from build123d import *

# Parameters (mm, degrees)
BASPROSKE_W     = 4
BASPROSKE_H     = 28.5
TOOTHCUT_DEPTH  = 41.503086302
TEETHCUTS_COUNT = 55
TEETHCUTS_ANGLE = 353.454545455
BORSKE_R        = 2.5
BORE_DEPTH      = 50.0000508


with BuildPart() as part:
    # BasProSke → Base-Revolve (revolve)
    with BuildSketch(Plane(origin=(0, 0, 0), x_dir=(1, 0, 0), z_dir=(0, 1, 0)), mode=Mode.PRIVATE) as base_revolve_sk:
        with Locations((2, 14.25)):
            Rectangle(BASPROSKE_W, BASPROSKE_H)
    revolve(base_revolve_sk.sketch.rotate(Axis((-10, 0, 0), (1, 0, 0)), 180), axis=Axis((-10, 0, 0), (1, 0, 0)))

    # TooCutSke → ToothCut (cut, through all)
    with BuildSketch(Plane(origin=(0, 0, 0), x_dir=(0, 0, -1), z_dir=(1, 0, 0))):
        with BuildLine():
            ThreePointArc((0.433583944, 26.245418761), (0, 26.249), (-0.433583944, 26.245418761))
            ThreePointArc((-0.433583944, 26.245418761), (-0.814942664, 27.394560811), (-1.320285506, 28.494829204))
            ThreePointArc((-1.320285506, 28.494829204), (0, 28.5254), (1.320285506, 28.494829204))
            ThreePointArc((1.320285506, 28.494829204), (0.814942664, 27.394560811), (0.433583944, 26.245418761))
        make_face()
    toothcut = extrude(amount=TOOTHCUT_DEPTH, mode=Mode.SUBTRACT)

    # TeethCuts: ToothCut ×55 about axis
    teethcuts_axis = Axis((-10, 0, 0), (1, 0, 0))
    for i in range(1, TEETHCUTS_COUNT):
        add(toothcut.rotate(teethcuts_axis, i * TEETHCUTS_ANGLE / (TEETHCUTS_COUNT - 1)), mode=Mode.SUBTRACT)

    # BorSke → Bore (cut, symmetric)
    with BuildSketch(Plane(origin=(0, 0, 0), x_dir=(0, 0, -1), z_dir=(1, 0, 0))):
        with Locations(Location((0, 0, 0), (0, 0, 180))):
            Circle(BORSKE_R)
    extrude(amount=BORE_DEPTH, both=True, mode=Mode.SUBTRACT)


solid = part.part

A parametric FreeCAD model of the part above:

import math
import FreeCAD as App
import Part
import Sketcher

V = App.Vector
Q = App.Units.Quantity


def add_polygon(sketch, points):
    """Adds a closed chain of lines whose ends are joined by coincident constraints."""
    first, n = sketch.GeometryCount, len(points)
    for a, b in zip(points, points[1:] + points[:1]):
        sketch.addGeometry(Part.LineSegment(App.Vector(*a, 0), App.Vector(*b, 0)), False)
    for i in range(n):
        sketch.addConstraint(Sketcher.Constraint("Coincident", first + i, 2, first + (i + 1) % n, 1))

doc = App.newDocument("Part")
body = doc.addObject("PartDesign::Body", "Body")

# Sketch on XZ plane
sketch1 = doc.addObject("Sketcher::SketchObject", "Sketch")
body.addObject(sketch1)
sketch1.AttachmentSupport = (doc.XZ_Plane, [""])
sketch1.MapMode = "FlatFace"
add_polygon(sketch1, [(0, -28.5), (0, 0), (4, 0), (4, -28.5)])  # lines 0-3
sketch1.addConstraint(Sketcher.Constraint("Vertical", 0))
sketch1.addConstraint(Sketcher.Constraint("Horizontal", 1))
sketch1.addConstraint(Sketcher.Constraint("Vertical", 2))
sketch1.addConstraint(Sketcher.Constraint("Horizontal", 3))
sketch1.addConstraint(Sketcher.Constraint("Coincident", 0, 2, -1, 1))
sketch1.addConstraint(Sketcher.Constraint("DistanceX", 1, 1, 1, 2, Q("4 mm")))
sketch1.addConstraint(Sketcher.Constraint("DistanceY", 0, 1, 0, 2, Q("28.5 mm")))
revolution = doc.addObject("PartDesign::Revolution", "Revolution")
body.addObject(revolution)
revolution.Profile = sketch1
revolution.ReferenceAxis = (sketch1, ["H_Axis"])
revolution.Angle = 360

# Sketch on YZ plane
sketch2 = doc.addObject("Sketcher::SketchObject", "Sketch001")
body.addObject(sketch2)
sketch2.AttachmentSupport = (doc.YZ_Plane, [""])
sketch2.MapMode = "FlatFace"
sketch2.addGeometry(Part.ArcOfCircle(Part.Circle(V(0, 0, 0), V(0, 0, 1), 26.2), math.radians(-0.95), math.radians(0.95)), False)
sketch2.addGeometry(Part.ArcOfCircle(Part.Circle(V(23.4, -11, 0), V(0, 0, 1), 11), math.radians(62.18), math.radians(74.8)), False)
sketch2.addGeometry(Part.ArcOfCircle(Part.Circle(V(0, 0, 0), V(0, 0, 1), 28.5), math.radians(-2.65), math.radians(2.65)), False)
sketch2.addGeometry(Part.ArcOfCircle(Part.Circle(V(23.4, 11, 0), V(0, 0, 1), 11), math.radians(-74.8), math.radians(-62.18)), False)
sketch2.addConstraint(Sketcher.Constraint("Coincident", 0, 1, 1, 2))
sketch2.addConstraint(Sketcher.Constraint("Coincident", 1, 1, 2, 1))
sketch2.addConstraint(Sketcher.Constraint("Coincident", 2, 2, 3, 2))
sketch2.addConstraint(Sketcher.Constraint("Coincident", 3, 1, 0, 2))
sketch2.addConstraint(Sketcher.Constraint("Coincident", 0, 3, -1, 1))
sketch2.addConstraint(Sketcher.Constraint("Coincident", 2, 3, -1, 1))
sketch2.addConstraint(Sketcher.Constraint("Equal", 1, 3))
sketch2.addConstraint(Sketcher.Constraint("Symmetric", 1, 3, 3, 3, -1))
sketch2.addConstraint(Sketcher.Constraint("Radius", 1, Q("11 mm")))
sketch2.addConstraint(Sketcher.Constraint("Radius", 2, Q("28.5254 mm")))
sketch2.addConstraint(Sketcher.Constraint("Radius", 0, Q("26.248997 mm")))
sketch2.addConstraint(Sketcher.Constraint("DistanceY", 1, 3, 3, 3, Q("22.0971 mm")))
sketch2.addConstraint(Sketcher.Constraint("DistanceY", 1, 1, 0, 1, Q("0.886702 mm")))
pocket1 = doc.addObject("PartDesign::Pocket", "Pocket")
body.addObject(pocket1)
pocket1.Profile = sketch2
pocket1.Type = "ThroughAll"
pocket1.Reversed = True
doc.recompute()

polarpattern = doc.addObject("PartDesign::PolarPattern", "PolarPattern")
body.addObject(polarpattern)
polarpattern.Originals = [pocket1]
polarpattern.Axis = (doc.X_Axis, [""])
polarpattern.Angle = 360
polarpattern.Occurrences = 55
body.Tip = polarpattern

# Sketch on YZ plane
sketch3 = doc.addObject("Sketcher::SketchObject", "Sketch002")
body.addObject(sketch3)
sketch3.AttachmentSupport = (doc.YZ_Plane, [""])
sketch3.MapMode = "FlatFace"
sketch3.addGeometry(Part.Circle(V(0, 0, 0), V(0, 0, 1), 2.5), False)
sketch3.addConstraint(Sketcher.Constraint("Coincident", 0, 3, -1, 1))
sketch3.addConstraint(Sketcher.Constraint("Diameter", 0, Q("5 mm")))
pocket2 = doc.addObject("PartDesign::Pocket", "Pocket001")
body.addObject(pocket2)
pocket2.Profile = sketch3
pocket2.Length = 100.000102
pocket2.Midplane = True

doc.recompute()
